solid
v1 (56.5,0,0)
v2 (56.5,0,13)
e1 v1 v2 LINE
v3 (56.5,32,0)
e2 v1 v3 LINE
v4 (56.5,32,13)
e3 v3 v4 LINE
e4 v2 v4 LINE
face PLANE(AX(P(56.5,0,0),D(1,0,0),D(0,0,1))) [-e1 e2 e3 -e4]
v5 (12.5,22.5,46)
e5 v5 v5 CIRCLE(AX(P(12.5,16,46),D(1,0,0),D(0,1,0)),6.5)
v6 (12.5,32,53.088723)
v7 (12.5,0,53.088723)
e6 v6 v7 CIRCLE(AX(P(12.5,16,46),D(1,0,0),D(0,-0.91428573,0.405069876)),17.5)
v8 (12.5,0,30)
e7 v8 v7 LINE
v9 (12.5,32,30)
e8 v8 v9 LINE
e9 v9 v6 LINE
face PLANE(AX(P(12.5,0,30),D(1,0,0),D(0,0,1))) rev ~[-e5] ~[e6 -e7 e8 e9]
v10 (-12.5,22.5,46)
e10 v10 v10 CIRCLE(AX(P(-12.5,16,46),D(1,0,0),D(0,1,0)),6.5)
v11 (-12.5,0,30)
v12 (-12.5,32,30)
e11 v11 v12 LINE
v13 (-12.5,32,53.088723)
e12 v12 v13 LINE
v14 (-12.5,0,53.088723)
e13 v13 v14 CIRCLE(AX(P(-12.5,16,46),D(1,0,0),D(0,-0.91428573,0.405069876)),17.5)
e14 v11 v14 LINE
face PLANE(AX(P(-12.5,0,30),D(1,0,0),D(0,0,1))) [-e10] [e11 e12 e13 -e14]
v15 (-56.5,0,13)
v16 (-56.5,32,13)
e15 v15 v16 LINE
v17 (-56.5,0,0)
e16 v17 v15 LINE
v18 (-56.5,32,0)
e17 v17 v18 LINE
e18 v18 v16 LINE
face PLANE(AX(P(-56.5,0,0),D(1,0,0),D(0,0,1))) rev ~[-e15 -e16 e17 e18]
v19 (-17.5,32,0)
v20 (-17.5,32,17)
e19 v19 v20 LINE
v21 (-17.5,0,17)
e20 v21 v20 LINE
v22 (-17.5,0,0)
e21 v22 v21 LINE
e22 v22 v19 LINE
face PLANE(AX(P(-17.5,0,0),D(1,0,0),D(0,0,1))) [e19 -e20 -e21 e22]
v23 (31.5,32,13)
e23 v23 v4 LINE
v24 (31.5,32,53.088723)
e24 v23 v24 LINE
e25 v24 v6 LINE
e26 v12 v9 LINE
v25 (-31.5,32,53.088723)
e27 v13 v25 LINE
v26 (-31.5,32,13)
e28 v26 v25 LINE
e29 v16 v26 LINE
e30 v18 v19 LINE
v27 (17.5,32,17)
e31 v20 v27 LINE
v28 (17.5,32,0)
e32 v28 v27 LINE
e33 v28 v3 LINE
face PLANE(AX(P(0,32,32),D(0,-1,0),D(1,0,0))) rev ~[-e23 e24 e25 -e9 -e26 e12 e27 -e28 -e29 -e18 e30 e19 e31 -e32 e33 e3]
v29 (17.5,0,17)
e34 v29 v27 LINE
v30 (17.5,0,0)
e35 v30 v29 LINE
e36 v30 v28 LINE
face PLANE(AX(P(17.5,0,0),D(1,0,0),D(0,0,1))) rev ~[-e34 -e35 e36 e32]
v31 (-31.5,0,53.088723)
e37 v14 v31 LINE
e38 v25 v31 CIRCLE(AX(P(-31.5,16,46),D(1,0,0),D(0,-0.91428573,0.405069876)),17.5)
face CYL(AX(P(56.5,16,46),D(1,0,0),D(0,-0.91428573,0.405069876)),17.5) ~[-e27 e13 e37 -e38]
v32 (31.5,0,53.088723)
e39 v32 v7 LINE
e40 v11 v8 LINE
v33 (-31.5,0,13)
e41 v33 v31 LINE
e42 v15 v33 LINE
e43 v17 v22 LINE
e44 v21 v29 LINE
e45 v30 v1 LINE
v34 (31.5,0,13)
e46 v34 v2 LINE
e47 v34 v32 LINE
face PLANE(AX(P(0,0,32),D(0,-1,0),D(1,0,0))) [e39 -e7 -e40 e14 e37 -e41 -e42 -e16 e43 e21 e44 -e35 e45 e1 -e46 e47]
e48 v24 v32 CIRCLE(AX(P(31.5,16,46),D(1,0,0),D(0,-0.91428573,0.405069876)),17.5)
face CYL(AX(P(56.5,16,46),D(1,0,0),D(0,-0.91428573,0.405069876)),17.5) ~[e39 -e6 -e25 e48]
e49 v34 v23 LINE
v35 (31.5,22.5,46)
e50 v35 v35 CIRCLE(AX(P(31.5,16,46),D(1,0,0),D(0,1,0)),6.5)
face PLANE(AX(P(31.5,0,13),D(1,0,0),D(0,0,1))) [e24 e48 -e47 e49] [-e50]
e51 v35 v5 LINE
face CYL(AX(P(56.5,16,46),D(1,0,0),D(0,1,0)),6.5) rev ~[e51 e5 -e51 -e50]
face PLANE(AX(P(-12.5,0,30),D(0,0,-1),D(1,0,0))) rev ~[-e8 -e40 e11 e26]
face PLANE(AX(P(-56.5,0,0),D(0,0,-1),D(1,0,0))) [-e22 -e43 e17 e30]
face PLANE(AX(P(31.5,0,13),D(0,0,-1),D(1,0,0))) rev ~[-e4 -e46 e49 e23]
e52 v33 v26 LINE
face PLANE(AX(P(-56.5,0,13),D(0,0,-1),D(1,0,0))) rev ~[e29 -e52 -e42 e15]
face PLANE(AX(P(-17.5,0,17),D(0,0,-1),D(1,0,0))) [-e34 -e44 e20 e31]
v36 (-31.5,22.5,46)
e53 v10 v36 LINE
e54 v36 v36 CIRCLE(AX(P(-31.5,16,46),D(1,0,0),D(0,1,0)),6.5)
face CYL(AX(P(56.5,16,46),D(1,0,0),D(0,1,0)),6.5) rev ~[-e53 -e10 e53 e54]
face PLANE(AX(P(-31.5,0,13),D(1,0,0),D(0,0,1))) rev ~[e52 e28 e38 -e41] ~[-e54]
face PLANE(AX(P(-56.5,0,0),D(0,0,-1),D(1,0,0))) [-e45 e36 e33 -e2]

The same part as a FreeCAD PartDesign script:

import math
import FreeCAD as App
import Part
import Sketcher

V = App.Vector
Q = App.Units.Quantity


def add_polygon(sketch, points):
    """Adds a closed chain of lines whose ends are joined by coincident constraints."""
    first, n = sketch.GeometryCount, len(points)
    for a, b in zip(points, points[1:] + points[:1]):
        sketch.addGeometry(Part.LineSegment(App.Vector(*a, 0), App.Vector(*b, 0)), False)
    for i in range(n):
        sketch.addConstraint(Sketcher.Constraint("Coincident", first + i, 2, first + (i + 1) % n, 1))

doc = App.newDocument("Part")
body = doc.addObject("PartDesign::Body", "Body")

# Sketch on XZ plane
sketch1 = doc.addObject("Sketcher::SketchObject", "Sketch")
body.addObject(sketch1)
sketch1.AttachmentSupport = (doc.XZ_Plane, [""])
sketch1.MapMode = "FlatFace"
add_polygon(sketch1, [(-56.5, 64), (-56.5, 0), (56.5, 0), (56.5, 64)])  # lines 0-3
sketch1.addConstraint(Sketcher.Constraint("Vertical", 0))
sketch1.addConstraint(Sketcher.Constraint("Horizontal", 1))
sketch1.addConstraint(Sketcher.Constraint("Vertical", 2))
sketch1.addConstraint(Sketcher.Constraint("Horizontal", 3))
sketch1.addConstraint(Sketcher.Constraint("Symmetric", 0, 2, 1, 2, -1, 1))
sketch1.addConstraint(Sketcher.Constraint("DistanceX", 1, 1, 1, 2, Q("113 mm")))
sketch1.addConstraint(Sketcher.Constraint("DistanceY", 0, 2, 0, 1, Q("64 mm")))
pad1 = doc.addObject("PartDesign::Pad", "Pad")
body.addObject(pad1)
pad1.Profile = sketch1
pad1.Length = 32
pad1.Reversed = True

# Sketch on YZ plane
sketch2 = doc.addObject("Sketcher::SketchObject", "Sketch001")
body.addObject(sketch2)
sketch2.AttachmentSupport = (doc.YZ_Plane, [""])
sketch2.MapMode = "FlatFace"
sketch2.AttachmentOffset = App.Placement(V(0, 0, 56.5), App.Rotation())
sketch2.addGeometry(Part.Circle(V(16, 46, 0), V(0, 0, 1), 6.5), False)
sketch2.addGeometry(Part.LineSegment(V(0, 64, 0), V(0, 53.088723, 0)), False)
sketch2.addGeometry(Part.ArcOfCircle(Part.Circle(V(16, 46, 0), V(0, 0, 1), 17.5), math.radians(23.895506), math.radians(156.104494)), False)
sketch2.addGeometry(Part.LineSegment(V(32, 53.088723, 0), V(32, 64, 0)), False)
sketch2.addGeometry(Part.LineSegment(V(32, 64, 0), V(0, 64, 0)), False)
sketch2.addConstraint(Sketcher.Constraint("Coincident", 1, 2, 2, 2))
sketch2.addConstraint(Sketcher.Constraint("Coincident", 2, 1, 3, 1))
sketch2.addConstraint(Sketcher.Constraint("Coincident", 3, 2, 4, 1))
sketch2.addConstraint(Sketcher.Constraint("Coincident", 4, 2, 1, 1))
sketch2.addConstraint(Sketcher.Constraint("Vertical", 1))
sketch2.addConstraint(Sketcher.Constraint("Vertical", 3))
sketch2.addConstraint(Sketcher.Constraint("Horizontal", 4))
sketch2.addConstraint(Sketcher.Constraint("Coincident", 2, 3, 0, 3))
sketch2.addConstraint(Sketcher.Constraint("PointOnObject", 1, 2, -2))
sketch2.addConstraint(Sketcher.Constraint("Horizontal", 1, 2, 2, 1))
sketch2.addConstraint(Sketcher.Constraint("Diameter", 0, Q("13 mm")))
sketch2.addConstraint(Sketcher.Constraint("Radius", 2, Q("17.5 mm")))
sketch2.addConstraint(Sketcher.Constraint("DistanceX", 4, 2, 4, 1, Q("32 mm")))
sketch2.addConstraint(Sketcher.Constraint("DistanceY", -1, 1, 0, 3, Q("46 mm")))
sketch2.addConstraint(Sketcher.Constraint("DistanceY", -1, 1, 3, 2, Q("64 mm")))
pocket1 = doc.addObject("PartDesign::Pocket", "Pocket")
body.addObject(pocket1)
pocket1.Profile = sketch2
pocket1.Type = "ThroughAll"

# Sketch on XZ plane
sketch3 = doc.addObject("Sketcher::SketchObject", "Sketch002")
body.addObject(sketch3)
sketch3.AttachmentSupport = (doc.XZ_Plane, [""])
sketch3.MapMode = "FlatFace"
add_polygon(sketch3, [(-17.5, 17), (-17.5, 0), (17.5, 0), (17.5, 17)])  # lines 0-3
add_polygon(sketch3, [(-56.5, 64), (-56.5, 13), (-31.5, 13), (-31.5, 64)])  # lines 4-7
add_polygon(sketch3, [(31.5, 64), (31.5, 13), (56.5, 13), (56.5, 64)])  # lines 8-11
add_polygon(sketch3, [(-12.5, 64), (-12.5, 30), (12.5, 30), (12.5, 64)])  # lines 12-15
sketch3.addConstraint(Sketcher.Constraint("Vertical", 0))
sketch3.addConstraint(Sketcher.Constraint("Horizontal", 1))
sketch3.addConstraint(Sketcher.Constraint("Vertical", 2))
sketch3.addConstraint(Sketcher.Constraint("Horizontal", 3))
sketch3.addConstraint(Sketcher.Constraint("Vertical", 4))
sketch3.addConstraint(Sketcher.Constraint("Horizontal", 5))
sketch3.addConstraint(Sketcher.Constraint("Vertical", 6))
sketch3.addConstraint(Sketcher.Constraint("Horizontal", 7))
sketch3.addConstraint(Sketcher.Constraint("Vertical", 8))
sketch3.addConstraint(Sketcher.Constraint("Horizontal", 9))
sketch3.addConstraint(Sketcher.Constraint("Vertical", 10))
sketch3.addConstraint(Sketcher.Constraint("Horizontal", 11))
sketch3.addConstraint(Sketcher.Constraint("Vertical", 12))
sketch3.addConstraint(Sketcher.Constraint("Horizontal", 13))
sketch3.addConstraint(Sketcher.Constraint("Vertical", 14))
sketch3.addConstraint(Sketcher.Constraint("Horizontal", 15))
sketch3.addConstraint(Sketcher.Constraint("Symmetric", 0, 2, 1, 2, -1, 1))
sketch3.addConstraint(Sketcher.Constraint("Symmetric", 5, 2, 8, 2, -2))
sketch3.addConstraint(Sketcher.Constraint("Symmetric", 7, 2, 10, 2, -2))
sketch3.addConstraint(Sketcher.Constraint("Horizontal", 11, 2, 14, 2))
sketch3.addConstraint(Sketcher.Constraint("Equal", 11, 13))
sketch3.addConstraint(Sketcher.Constraint("DistanceX", 1, 1, 1, 2, Q("35 mm")))
sketch3.addConstraint(Sketcher.Constraint("DistanceX", 5, 1, 5, 2, Q("25 mm")))
sketch3.addConstraint(Sketcher.Constraint("DistanceY", 0, 2, 0, 1, Q("17 mm")))
sketch3.addConstraint(Sketcher.Constraint("DistanceY", 4, 2, 4, 1, Q("51 mm")))
sketch3.addConstraint(Sketcher.Constraint("DistanceY", 12, 2, 12, 1, Q("34 mm")))
sketch3.addConstraint(Sketcher.Constraint("DistanceY", -1, 1, 4, 2, Q("13 mm")))
sketch3.addConstraint(Sketcher.Constraint("DistanceX", 4, 2, 3, 2, Q("39 mm")))
sketch3.addConstraint(Sketcher.Constraint("DistanceX", 3, 2, 12, 2, Q("5 mm")))
pocket2 = doc.addObject("PartDesign::Pocket", "Pocket001")
body.addObject(pocket2)
pocket2.Profile = sketch3
pocket2.Type = "ThroughAll"

doc.recompute()
